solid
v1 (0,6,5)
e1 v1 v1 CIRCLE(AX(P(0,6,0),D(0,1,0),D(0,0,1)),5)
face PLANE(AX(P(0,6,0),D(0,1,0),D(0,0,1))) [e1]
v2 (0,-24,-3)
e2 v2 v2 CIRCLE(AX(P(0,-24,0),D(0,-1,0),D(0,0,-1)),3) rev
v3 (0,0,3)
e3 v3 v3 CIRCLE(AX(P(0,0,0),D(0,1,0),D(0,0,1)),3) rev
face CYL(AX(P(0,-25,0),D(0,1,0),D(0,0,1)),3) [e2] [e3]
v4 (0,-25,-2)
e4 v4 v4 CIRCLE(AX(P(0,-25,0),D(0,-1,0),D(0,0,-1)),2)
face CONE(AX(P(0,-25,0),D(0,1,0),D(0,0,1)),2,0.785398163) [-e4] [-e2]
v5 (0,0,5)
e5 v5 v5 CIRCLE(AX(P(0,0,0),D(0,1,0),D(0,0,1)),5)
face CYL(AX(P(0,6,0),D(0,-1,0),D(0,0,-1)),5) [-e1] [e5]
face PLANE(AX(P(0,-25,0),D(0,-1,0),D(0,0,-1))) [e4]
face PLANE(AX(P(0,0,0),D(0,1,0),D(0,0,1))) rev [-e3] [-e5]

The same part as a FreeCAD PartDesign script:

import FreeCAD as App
import Part
import Sketcher

V = App.Vector
Q = App.Units.Quantity


def edges_at(feature, points):
    """Names of the edges that pass closest to the given points."""
    edges = feature.Shape.Edges
    near = lambda p: min(range(len(edges)), key=lambda i: edges[i].distToShape(Part.Vertex(*p))[0])
    return sorted({f"Edge{near(p) + 1}" for p in points})

doc = App.newDocument("Part")
body = doc.addObject("PartDesign::Body", "Body")

# Sketch on XZ plane
sketch1 = body.newObject("Sketcher::SketchObject", "Sketch")
sketch1.AttachmentSupport = (doc.getObject("XZ_Plane"), [""])
sketch1.MapMode = "FlatFace"
sketch1.addGeometry(Part.Circle(V(0, 0, 0), V(0, 0, 1), 5), False)
sketch1.addConstraint([
    Sketcher.Constraint("Coincident", 0, 3, -1, 1),
    Sketcher.Constraint("Diameter", 0, Q("10 mm")),
])
pad1 = body.newObject("PartDesign::Pad", "Pad")
pad1.Profile = sketch1
pad1.Length = 6
pad1.Reversed = True

# Sketch on XZ plane
sketch2 = body.newObject("Sketcher::SketchObject", "Sketch001")
sketch2.AttachmentSupport = (doc.getObject("XZ_Plane"), [""])
sketch2.MapMode = "FlatFace"
sketch2.addGeometry(Part.Circle(V(0, 0, 0), V(0, 0, 1), 3), False)
sketch2.addConstraint([
    Sketcher.Constraint("Coincident", 0, 3, -1, 1),
    Sketcher.Constraint("Diameter", 0, Q("6 mm")),
])
pad2 = body.newObject("PartDesign::Pad", "Pad001")
pad2.Profile = sketch2
pad2.Length = 25
doc.recompute()

chamfer = body.newObject("PartDesign::Chamfer", "Chamfer")
chamfer.Base = (pad2, edges_at(pad2, [(-3, -25, 0)]))
chamfer.Size = 1

doc.recompute()
